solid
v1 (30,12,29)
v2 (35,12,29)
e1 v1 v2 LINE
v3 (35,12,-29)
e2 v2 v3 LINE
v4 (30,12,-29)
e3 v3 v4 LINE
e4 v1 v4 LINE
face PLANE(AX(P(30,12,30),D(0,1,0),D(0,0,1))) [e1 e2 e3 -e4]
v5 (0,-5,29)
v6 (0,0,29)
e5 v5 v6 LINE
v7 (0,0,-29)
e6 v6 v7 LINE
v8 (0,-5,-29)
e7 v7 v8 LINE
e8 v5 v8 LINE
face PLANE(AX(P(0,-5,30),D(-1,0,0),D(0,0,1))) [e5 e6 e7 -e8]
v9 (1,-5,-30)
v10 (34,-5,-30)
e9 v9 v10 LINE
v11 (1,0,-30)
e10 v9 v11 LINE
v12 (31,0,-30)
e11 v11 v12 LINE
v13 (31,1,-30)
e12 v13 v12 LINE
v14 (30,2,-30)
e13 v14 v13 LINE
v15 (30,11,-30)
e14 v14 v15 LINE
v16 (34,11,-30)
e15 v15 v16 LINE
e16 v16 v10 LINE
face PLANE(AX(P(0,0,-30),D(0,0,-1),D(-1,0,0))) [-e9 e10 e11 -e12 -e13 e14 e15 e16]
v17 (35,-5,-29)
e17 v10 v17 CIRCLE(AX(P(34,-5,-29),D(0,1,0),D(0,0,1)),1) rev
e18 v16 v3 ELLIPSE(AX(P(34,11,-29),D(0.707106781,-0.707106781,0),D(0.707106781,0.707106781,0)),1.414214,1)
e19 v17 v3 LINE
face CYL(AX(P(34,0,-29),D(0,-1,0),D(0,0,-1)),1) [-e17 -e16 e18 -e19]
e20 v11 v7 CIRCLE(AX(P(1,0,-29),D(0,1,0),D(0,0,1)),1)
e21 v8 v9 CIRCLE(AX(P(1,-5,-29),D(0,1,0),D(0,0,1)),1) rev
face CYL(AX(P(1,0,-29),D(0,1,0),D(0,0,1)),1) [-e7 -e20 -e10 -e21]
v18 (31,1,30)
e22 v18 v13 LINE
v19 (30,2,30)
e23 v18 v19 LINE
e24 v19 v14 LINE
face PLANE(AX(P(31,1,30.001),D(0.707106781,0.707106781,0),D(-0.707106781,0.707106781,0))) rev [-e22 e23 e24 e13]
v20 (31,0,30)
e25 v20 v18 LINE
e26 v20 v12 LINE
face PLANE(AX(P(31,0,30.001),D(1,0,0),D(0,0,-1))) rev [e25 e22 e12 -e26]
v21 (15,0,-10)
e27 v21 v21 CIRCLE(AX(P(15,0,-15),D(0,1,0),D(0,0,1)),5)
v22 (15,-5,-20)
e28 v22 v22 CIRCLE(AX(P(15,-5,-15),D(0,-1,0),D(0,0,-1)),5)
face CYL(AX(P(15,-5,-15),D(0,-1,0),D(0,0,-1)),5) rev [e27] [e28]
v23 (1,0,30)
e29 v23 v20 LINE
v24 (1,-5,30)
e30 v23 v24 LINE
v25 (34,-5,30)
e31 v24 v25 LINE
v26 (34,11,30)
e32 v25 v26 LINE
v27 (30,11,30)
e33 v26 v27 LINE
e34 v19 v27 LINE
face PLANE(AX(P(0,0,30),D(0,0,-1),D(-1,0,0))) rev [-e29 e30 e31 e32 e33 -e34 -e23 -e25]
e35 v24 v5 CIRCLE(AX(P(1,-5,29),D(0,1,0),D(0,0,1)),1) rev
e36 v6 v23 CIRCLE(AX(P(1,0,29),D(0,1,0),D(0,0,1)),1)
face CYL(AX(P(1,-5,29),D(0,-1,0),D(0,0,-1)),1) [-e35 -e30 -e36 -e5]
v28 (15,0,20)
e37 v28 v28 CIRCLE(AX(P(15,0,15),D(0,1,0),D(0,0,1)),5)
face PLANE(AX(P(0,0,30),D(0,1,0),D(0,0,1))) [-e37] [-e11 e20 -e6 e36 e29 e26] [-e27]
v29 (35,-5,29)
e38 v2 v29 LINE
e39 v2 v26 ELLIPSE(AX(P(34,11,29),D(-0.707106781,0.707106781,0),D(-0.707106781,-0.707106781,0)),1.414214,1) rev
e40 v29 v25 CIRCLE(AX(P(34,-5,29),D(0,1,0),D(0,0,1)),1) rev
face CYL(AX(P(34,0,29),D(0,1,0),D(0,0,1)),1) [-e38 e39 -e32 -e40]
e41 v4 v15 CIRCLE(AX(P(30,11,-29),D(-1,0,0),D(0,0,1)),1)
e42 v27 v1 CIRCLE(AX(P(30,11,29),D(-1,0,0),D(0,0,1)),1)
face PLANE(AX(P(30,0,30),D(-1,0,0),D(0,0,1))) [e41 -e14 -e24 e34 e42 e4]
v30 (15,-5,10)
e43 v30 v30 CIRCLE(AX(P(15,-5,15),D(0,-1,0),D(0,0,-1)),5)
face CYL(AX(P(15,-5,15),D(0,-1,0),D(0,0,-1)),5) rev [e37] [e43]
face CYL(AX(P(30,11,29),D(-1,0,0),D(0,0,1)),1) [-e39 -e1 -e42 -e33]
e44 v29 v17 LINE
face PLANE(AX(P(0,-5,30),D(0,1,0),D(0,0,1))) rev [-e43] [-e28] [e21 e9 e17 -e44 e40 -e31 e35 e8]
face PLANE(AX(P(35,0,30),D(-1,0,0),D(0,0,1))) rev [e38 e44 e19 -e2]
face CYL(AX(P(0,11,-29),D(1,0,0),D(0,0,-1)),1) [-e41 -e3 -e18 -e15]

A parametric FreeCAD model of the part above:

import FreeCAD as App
import Part
import Sketcher
Q = App.Units.Quantity


def edges_at(feature, points):
    """Names of the edges that pass closest to the given points."""
    edges = feature.Shape.Edges
    near = lambda p: min(range(len(edges)), key=lambda i: edges[i].distToShape(Part.Vertex(*p))[0])
    return sorted({f"Edge{near(p) + 1}" for p in points})


def add_polygon(sketch, points):
    """Adds a closed chain of lines whose ends are joined by coincident constraints."""
    first, n = sketch.GeometryCount, len(points)
    for a, b in zip(points, points[1:] + points[:1]):
        sketch.addGeometry(Part.LineSegment(App.Vector(*a, 0), App.Vector(*b, 0)), False)
    for i in range(n):
        sketch.addConstraint(Sketcher.Constraint("Coincident", first + i, 2, first + (i + 1) % n, 1))

doc = App.newDocument("Part")
body = doc.addObject("PartDesign::Body", "Body")

# Sketch on XY plane
sketch1 = body.newObject("Sketcher::SketchObject", "Sketch")
sketch1.AttachmentSupport = (doc.getObject("XY_Plane"), [""])
sketch1.MapMode = "FlatFace"
add_polygon(sketch1, [(30, 0), (0, 0), (0, -5), (35, -5), (35, 12), (30, 12)])  # lines 0-5
sketch1.addConstraint([
    Sketcher.Constraint("Horizontal", 0),
    Sketcher.Constraint("Vertical", 1),
    Sketcher.Constraint("Horizontal", 2),
    Sketcher.Constraint("Vertical", 3),
    Sketcher.Constraint("Horizontal", 4),
    Sketcher.Constraint("Vertical", 5),
    Sketcher.Constraint("Coincident", 0, 2, -1, 1),
    Sketcher.Constraint("Equal", 4, 1),
    Sketcher.Constraint("DistanceX", 0, 2, 0, 1, Q("30 mm")),
    Sketcher.Constraint("DistanceX", 2, 1, 2, 2, Q("35 mm")),
    Sketcher.Constraint("DistanceY", 3, 1, 3, 2, Q("17 mm")),
])
pad1 = body.newObject("PartDesign::Pad", "Pad")
pad1.Profile = sketch1
pad1.Length = 60
pad1.Midplane = True

# Sketch on XZ plane
sketch2 = body.newObject("Sketcher::SketchObject", "Sketch001")
sketch2.AttachmentSupport = (doc.getObject("XZ_Plane"), [""])
sketch2.MapMode = "FlatFace"
sketch2.AttachmentOffset = App.Placement(App.Vector(0, 0, 5), App.Rotation())
sketch2.addGeometry([
    Part.Circle(App.Vector(15, -15, 0), App.Vector(0, 0, 1), 5),
    Part.Circle(App.Vector(15, 15, 0), App.Vector(0, 0, 1), 5),
], False)
sketch2.addConstraint([
    Sketcher.Constraint("Equal", 0, 1),
    Sketcher.Constraint("Symmetric", 0, 3, 1, 3, -1),
    Sketcher.Constraint("Diameter", 0, Q("10 mm")),
    Sketcher.Constraint("DistanceX", -1, 1, 0, 3, Q("15 mm")),
    Sketcher.Constraint("DistanceY", 0, 3, -1, 1, Q("15 mm")),
])
doc.recompute()
hole = body.newObject("PartDesign::Hole", "Hole")
hole.Profile = sketch2
hole.ThreadType = "None"
hole.Diameter = 10
hole.DepthType = "ThroughAll"

# Sketch on XY plane
sketch3 = body.newObject("Sketcher::SketchObject", "Sketch002")
sketch3.AttachmentSupport = (doc.getObject("XY_Plane"), [""])
sketch3.MapMode = "FlatFace"
sketch3.AttachmentOffset = App.Placement(App.Vector(0, 0, -30), App.Rotation())
add_polygon(sketch3, [(31, 0), (30, 0), (30, 2), (31, 1)])  # lines 0-3
sketch3.addConstraint([
    Sketcher.Constraint("Horizontal", 0),
    Sketcher.Constraint("Vertical", 1),
    Sketcher.Constraint("Vertical", 3),
    Sketcher.Constraint("PointOnObject", 0, 2, -1),
    Sketcher.Constraint("Equal", 0, 3),
    Sketcher.Constraint("DistanceX", 0, 2, 0, 1, Q("1 mm")),
    Sketcher.Constraint("DistanceY", 1, 1, 1, 2, Q("2 mm")),
    Sketcher.Constraint("DistanceX", -1, 1, 0, 2, Q("30 mm")),
])
pocket1 = body.newObject("PartDesign::Pocket", "Pocket")
pocket1.Profile = sketch3
pocket1.Type = "UpToFirst"
pocket1.Reversed = True
doc.recompute()

fillet = body.newObject("PartDesign::Fillet", "Fillet")
fillet.Base = (pocket1, edges_at(pocket1, [
    (0, -2.5, 30),
    (35, 3.5, 30),
    (0, -2.5, -30),
    (32.5, 12, -30),
    (35, 3.5, -30),
    (32.5, 12, 30),
]))
fillet.Radius = 1

doc.recompute()
